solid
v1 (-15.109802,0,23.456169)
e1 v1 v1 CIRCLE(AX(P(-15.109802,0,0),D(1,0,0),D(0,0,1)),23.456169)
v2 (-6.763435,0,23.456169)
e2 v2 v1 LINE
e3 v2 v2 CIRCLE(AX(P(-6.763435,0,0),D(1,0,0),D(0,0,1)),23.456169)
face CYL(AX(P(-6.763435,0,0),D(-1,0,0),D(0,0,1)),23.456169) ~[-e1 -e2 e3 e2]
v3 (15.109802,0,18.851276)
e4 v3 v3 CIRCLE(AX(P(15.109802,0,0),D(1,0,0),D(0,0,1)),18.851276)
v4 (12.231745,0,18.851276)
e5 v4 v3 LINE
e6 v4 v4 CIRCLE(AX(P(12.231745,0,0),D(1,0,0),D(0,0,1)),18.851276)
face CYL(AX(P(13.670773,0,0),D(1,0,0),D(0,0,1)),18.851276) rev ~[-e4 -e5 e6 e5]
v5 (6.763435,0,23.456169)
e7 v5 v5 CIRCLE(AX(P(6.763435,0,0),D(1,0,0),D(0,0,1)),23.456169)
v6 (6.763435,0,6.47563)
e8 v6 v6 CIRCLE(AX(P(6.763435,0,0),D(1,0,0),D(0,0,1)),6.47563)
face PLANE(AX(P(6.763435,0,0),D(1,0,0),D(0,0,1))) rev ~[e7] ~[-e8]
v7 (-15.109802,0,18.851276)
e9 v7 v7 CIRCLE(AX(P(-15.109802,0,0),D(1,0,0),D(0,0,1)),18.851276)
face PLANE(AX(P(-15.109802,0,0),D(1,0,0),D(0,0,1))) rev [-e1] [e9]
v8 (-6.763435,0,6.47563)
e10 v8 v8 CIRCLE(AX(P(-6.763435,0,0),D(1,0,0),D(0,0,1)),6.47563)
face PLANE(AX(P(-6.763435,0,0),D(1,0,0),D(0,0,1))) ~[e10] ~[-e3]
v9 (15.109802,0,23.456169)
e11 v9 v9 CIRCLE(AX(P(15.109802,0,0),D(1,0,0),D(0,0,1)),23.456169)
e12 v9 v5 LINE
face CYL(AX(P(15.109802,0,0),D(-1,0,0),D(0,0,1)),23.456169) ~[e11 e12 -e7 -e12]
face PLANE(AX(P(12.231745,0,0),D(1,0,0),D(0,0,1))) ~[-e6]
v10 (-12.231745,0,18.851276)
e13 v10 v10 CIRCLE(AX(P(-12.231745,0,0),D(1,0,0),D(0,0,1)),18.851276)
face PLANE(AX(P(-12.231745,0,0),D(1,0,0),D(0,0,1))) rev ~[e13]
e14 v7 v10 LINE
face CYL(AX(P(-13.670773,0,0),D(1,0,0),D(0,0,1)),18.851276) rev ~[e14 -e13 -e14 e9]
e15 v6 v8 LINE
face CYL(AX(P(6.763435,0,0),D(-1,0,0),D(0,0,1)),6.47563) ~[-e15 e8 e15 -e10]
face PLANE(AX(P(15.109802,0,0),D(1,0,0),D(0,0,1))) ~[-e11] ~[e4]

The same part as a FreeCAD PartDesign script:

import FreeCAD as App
import Part
import Sketcher
from FreeCAD import Vector
Q = App.Units.Quantity


def add_polygon(sketch, points):
    """Adds a closed chain of lines whose ends are joined by coincident constraints."""
    first, n = sketch.GeometryCount, len(points)
    for a, b in zip(points, points[1:] + points[:1]):
        sketch.addGeometry(Part.LineSegment(App.Vector(*a, 0), App.Vector(*b, 0)), False)
    for i in range(n):
        sketch.addConstraint(Sketcher.Constraint("Coincident", first + i, 2, first + (i + 1) % n, 1))

doc = App.newDocument("Part")
body = doc.addObject("PartDesign::Body", "Body")

# Sketch on XZ plane
sketch1 = body.newObject("Sketcher::SketchObject", "Sketch")
sketch1.AttachmentSupport = (doc.getObject("XZ_Plane"), [""])
sketch1.MapMode = "FlatFace"
add_polygon(sketch1, [(-12.231745, 0), (12.231745, 0), (12.231745, 18.851276), (15.109802, 18.851276), (15.109802, 23.456169), (6.763435, 23.456169), (6.763435, 6.47563), (-6.763435, 6.47563), (-6.763435, 23.456169), (-15.109802, 23.456169), (-15.109802, 18.851276), (-12.231745, 18.851276)])  # lines 0-11
sketch1.addConstraint(Sketcher.Constraint("Horizontal", 0))
sketch1.addConstraint(Sketcher.Constraint("Vertical", 1))
sketch1.addConstraint(Sketcher.Constraint("Horizontal", 2))
sketch1.addConstraint(Sketcher.Constraint("Vertical", 3))
sketch1.addConstraint(Sketcher.Constraint("Horizontal", 4))
sketch1.addConstraint(Sketcher.Constraint("Vertical", 5))
sketch1.addConstraint(Sketcher.Constraint("Horizontal", 6))
sketch1.addConstraint(Sketcher.Constraint("Vertical", 7))
sketch1.addConstraint(Sketcher.Constraint("Horizontal", 8))
sketch1.addConstraint(Sketcher.Constraint("Vertical", 9))
sketch1.addConstraint(Sketcher.Constraint("Horizontal", 10))
sketch1.addConstraint(Sketcher.Constraint("Vertical", 11))
sketch1.addConstraint(Sketcher.Constraint("Symmetric", 0, 2, 11, 2, -1, 1))
sketch1.addConstraint(Sketcher.Constraint("Symmetric", 4, 2, 7, 2, -2))
sketch1.addConstraint(Sketcher.Constraint("Symmetric", 2, 2, 9, 2, -2))
sketch1.addConstraint(Sketcher.Constraint("DistanceX", 0, 1, 0, 2, Q("24.46349 mm")))
sketch1.addConstraint(Sketcher.Constraint("DistanceX", 6, 2, 6, 1, Q("13.526871 mm")))
sketch1.addConstraint(Sketcher.Constraint("DistanceY", 5, 2, 5, 1, Q("16.98054 mm")))
sketch1.addConstraint(Sketcher.Constraint("DistanceX", -1, 1, 2, 2, Q("15.109802 mm")))
sketch1.addConstraint(Sketcher.Constraint("DistanceY", 1, 1, 1, 2, Q("18.851276 mm")))
sketch1.addConstraint(Sketcher.Constraint("DistanceY", 3, 1, 3, 2, Q("4.604893 mm")))
revolution = body.newObject("PartDesign::Revolution", "Revolution")
revolution.Profile = sketch1
revolution.ReferenceAxis = (sketch1, ["H_Axis"])
revolution.Angle = 360

doc.recompute()
